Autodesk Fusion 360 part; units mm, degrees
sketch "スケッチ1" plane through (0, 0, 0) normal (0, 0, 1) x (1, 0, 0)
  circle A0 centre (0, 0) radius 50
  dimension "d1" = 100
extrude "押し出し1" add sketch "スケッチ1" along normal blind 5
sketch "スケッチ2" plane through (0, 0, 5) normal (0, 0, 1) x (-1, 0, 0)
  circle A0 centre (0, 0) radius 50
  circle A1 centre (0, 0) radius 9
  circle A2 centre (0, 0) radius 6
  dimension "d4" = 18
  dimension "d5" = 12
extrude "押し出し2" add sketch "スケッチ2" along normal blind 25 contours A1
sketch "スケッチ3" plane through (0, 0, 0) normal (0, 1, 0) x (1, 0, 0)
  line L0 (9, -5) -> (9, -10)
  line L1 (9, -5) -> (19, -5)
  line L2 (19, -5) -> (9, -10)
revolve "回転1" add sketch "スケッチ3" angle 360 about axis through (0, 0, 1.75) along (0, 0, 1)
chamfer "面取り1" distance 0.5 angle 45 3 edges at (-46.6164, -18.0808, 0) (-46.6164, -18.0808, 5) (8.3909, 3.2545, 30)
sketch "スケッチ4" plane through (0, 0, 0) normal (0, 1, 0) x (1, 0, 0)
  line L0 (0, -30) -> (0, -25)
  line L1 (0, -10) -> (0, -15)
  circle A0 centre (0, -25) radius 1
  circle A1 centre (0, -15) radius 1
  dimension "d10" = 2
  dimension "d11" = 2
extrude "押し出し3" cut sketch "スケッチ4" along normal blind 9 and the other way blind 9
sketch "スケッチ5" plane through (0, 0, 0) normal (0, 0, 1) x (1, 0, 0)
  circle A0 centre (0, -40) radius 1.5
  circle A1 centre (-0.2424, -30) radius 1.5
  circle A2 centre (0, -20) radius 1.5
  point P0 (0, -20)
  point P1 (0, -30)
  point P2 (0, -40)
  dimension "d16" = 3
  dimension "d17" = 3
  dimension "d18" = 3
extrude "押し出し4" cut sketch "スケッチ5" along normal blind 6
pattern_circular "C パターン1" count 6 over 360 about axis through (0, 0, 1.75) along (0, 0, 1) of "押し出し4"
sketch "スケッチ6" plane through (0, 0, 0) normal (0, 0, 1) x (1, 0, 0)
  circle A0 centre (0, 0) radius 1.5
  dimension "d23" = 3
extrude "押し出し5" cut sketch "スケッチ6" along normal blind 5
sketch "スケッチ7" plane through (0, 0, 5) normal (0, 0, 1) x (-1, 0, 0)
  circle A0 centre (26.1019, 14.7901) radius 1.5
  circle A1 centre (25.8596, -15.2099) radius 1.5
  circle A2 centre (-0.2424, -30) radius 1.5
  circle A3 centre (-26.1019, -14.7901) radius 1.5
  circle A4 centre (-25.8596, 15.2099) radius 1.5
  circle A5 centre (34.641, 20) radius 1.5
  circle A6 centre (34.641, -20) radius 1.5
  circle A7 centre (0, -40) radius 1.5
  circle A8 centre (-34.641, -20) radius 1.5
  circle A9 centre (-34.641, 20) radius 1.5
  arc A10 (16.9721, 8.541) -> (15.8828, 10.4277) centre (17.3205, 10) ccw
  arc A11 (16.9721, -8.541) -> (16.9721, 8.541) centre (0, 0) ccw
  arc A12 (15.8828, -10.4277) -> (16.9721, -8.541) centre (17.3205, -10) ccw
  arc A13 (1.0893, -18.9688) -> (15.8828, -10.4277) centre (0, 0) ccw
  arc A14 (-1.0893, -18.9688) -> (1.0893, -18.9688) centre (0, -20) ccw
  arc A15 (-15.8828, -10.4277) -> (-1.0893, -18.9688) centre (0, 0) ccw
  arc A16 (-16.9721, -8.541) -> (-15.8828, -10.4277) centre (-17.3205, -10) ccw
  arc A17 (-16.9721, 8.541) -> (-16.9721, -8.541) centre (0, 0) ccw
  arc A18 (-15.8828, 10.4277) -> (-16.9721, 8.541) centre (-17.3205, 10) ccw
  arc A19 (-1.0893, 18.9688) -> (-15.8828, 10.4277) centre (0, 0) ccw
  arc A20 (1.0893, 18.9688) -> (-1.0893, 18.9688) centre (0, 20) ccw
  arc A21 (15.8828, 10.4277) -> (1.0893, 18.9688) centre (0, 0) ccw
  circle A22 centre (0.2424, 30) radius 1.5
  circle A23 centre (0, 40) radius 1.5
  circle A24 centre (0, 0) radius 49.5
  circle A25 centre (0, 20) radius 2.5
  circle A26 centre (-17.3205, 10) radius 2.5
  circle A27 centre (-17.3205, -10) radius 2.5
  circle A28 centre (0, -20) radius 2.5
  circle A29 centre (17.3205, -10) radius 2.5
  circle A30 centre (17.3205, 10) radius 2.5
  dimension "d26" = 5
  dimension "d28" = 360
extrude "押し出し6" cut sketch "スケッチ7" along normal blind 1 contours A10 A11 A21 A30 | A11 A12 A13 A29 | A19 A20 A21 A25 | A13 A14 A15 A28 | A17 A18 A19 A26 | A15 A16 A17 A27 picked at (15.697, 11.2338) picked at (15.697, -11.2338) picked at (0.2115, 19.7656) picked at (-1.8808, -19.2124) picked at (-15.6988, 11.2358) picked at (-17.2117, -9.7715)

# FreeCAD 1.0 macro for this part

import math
import FreeCAD as App
import Part
import Sketcher
Q = App.Units.Quantity


def edges_at(feature, points):
    """Names of the edges that pass closest to the given points."""
    edges = feature.Shape.Edges
    near = lambda p: min(range(len(edges)), key=lambda i: edges[i].distToShape(Part.Vertex(*p))[0])
    return sorted({f"Edge{near(p) + 1}" for p in points})

doc = App.newDocument("Part")
body = doc.addObject("PartDesign::Body", "Body")

sketch1 = body.newObject("Sketcher::SketchObject", "Sketch")
sketch1.AttachmentSupport = (doc.getObject("XY_Plane"), [""])
sketch1.MapMode = "FlatFace"
sketch1.addGeometry(Part.Circle(App.Vector(0, 0, 0), App.Vector(0, 0, 1), 50), False)
sketch1.addConstraint([
    Sketcher.Constraint("Coincident", 0, 3, -1, 1),
    Sketcher.Constraint("Diameter", 0, Q("100 mm")),
])
pad1 = body.newObject("PartDesign::Pad", "Pad")
pad1.Profile = sketch1
pad1.Length = 5

sketch2 = body.newObject("Sketcher::SketchObject", "Sketch001")
sketch2.AttachmentSupport = (doc.getObject("XY_Plane"), [""])
sketch2.MapMode = "FlatFace"
sketch2.AttachmentOffset = App.Placement(App.Vector(0, 0, 5), App.Rotation())
sketch2.addGeometry([
    Part.Circle(App.Vector(0, 0, 0), App.Vector(0, 0, 1), 9),
    Part.Circle(App.Vector(0, 0, 0), App.Vector(0, 0, 1), 6),
], False)
sketch2.addConstraint([
    Sketcher.Constraint("Coincident", 0, 3, -1, 1),
    Sketcher.Constraint("Coincident", 1, 3, -1, 1),
    Sketcher.Constraint("Diameter", 0, Q("18 mm")),
    Sketcher.Constraint("Diameter", 1, Q("12 mm")),
])
pad2 = body.newObject("PartDesign::Pad", "Pad001")
pad2.Profile = sketch2
pad2.Length = 25

sketch3 = body.newObject("Sketcher::SketchObject", "Sketch002")
sketch3.AttachmentSupport = (doc.getObject("XZ_Plane"), [""])
sketch3.MapMode = "FlatFace"
sketch3.addGeometry([
    Part.LineSegment(App.Vector(19, 5, 0), App.Vector(9, 5, 0)),
    Part.LineSegment(App.Vector(9, 5, 0), App.Vector(9, 10, 0)),
    Part.LineSegment(App.Vector(9, 10, 0), App.Vector(19, 5, 0)),
], False)
sketch3.addConstraint([
    Sketcher.Constraint("Coincident", 0, 2, 1, 1),
    Sketcher.Constraint("Coincident", 1, 2, 2, 1),
    Sketcher.Constraint("Coincident", 2, 2, 0, 1),
    Sketcher.Constraint("Horizontal", 0),
    Sketcher.Constraint("Vertical", 1),
    Sketcher.Constraint("DistanceX", 0, 2, 0, 1, Q("10 mm")),
    Sketcher.Constraint("DistanceY", 1, 1, 1, 2, Q("5 mm")),
    Sketcher.Constraint("DistanceX", -1, 1, 0, 2, Q("9 mm")),
    Sketcher.Constraint("DistanceY", -1, 1, 0, 2, Q("5 mm")),
])
revolution = body.newObject("PartDesign::Revolution", "Revolution")
revolution.Profile = sketch3
revolution.ReferenceAxis = (sketch3, ["V_Axis"])
revolution.Angle = 360
doc.recompute()

chamfer = body.newObject("PartDesign::Chamfer", "Chamfer")
chamfer.Base = (revolution, edges_at(revolution, [(-46.616, -18.081, 0), (-46.616, -18.081, 5), (8.391, 3.255, 30)]))
chamfer.Size = 0.5

sketch4 = body.newObject("Sketcher::SketchObject", "Sketch003")
sketch4.AttachmentSupport = (doc.getObject("XZ_Plane"), [""])
sketch4.MapMode = "FlatFace"
sketch4.addGeometry([
    Part.Circle(App.Vector(0, 25, 0), App.Vector(0, 0, 1), 1),
    Part.Circle(App.Vector(0, 15, 0), App.Vector(0, 0, 1), 1),
], False)
sketch4.addConstraint([
    Sketcher.Constraint("Equal", 0, 1),
    Sketcher.Constraint("PointOnObject", 0, 3, -2),
    Sketcher.Constraint("PointOnObject", 1, 3, -2),
    Sketcher.Constraint("Diameter", 0, Q("2 mm")),
    Sketcher.Constraint("DistanceY", -1, 1, 0, 3, Q("25 mm")),
    Sketcher.Constraint("DistanceY", -1, 1, 1, 3, Q("15 mm")),
])
pocket1 = body.newObject("PartDesign::Pocket", "Pocket")
pocket1.Profile = sketch4
pocket1.Type = "ThroughAll"
pocket1.Midplane = True

sketch5 = body.newObject("Sketcher::SketchObject", "Sketch004")
sketch5.AttachmentSupport = (doc.getObject("XY_Plane"), [""])
sketch5.MapMode = "FlatFace"
sketch5.addGeometry([
    Part.Circle(App.Vector(0, -40, 0), App.Vector(0, 0, 1), 1.5),
    Part.Circle(App.Vector(-0.2, -30, 0), App.Vector(0, 0, 1), 1.5),
    Part.Circle(App.Vector(0, -20, 0), App.Vector(0, 0, 1), 1.5),
], False)
sketch5.addConstraint([
    Sketcher.Constraint("Equal", 0, 1),
    Sketcher.Constraint("Equal", 1, 2),
    Sketcher.Constraint("PointOnObject", 0, 3, -2),
    Sketcher.Constraint("PointOnObject", 2, 3, -2),
    Sketcher.Constraint("Diameter", 0, Q("3 mm")),
    Sketcher.Constraint("DistanceY", 0, 3, -1, 1, Q("40 mm")),
    Sketcher.Constraint("DistanceY", 1, 3, -1, 1, Q("30 mm")),
    Sketcher.Constraint("DistanceY", 2, 3, -1, 1, Q("20 mm")),
    Sketcher.Constraint("DistanceX", 1, 3, -1, 1, Q("0.2424 mm")),
])
pocket2 = body.newObject("PartDesign::Pocket", "Pocket001")
pocket2.Profile = sketch5
pocket2.Length = 6
pocket2.Reversed = True
doc.recompute()

polarpattern = body.newObject("PartDesign::PolarPattern", "PolarPattern")
polarpattern.Originals = [pocket2]
polarpattern.Axis = (doc.getObject("Z_Axis"), [""])
polarpattern.Angle = 360
polarpattern.Occurrences = 6
body.Tip = polarpattern

sketch6 = body.newObject("Sketcher::SketchObject", "Sketch005")
sketch6.AttachmentSupport = (doc.getObject("XY_Plane"), [""])
sketch6.MapMode = "FlatFace"
sketch6.addGeometry(Part.Circle(App.Vector(0, 0, 0), App.Vector(0, 0, 1), 1.5), False)
sketch6.addConstraint([
    Sketcher.Constraint("Coincident", 0, 3, -1, 1),
    Sketcher.Constraint("Diameter", 0, Q("3 mm")),
])
pocket3 = body.newObject("PartDesign::Pocket", "Pocket002")
pocket3.Profile = sketch6
pocket3.Length = 5
pocket3.Reversed = True

sketch7 = body.newObject("Sketcher::SketchObject", "Sketch006")
sketch7.AttachmentSupport = (doc.getObject("XY_Plane"), [""])
sketch7.MapMode = "FlatFace"
sketch7.AttachmentOffset = App.Placement(App.Vector(0, 0, 5), App.Rotation())
sketch7.addGeometry([
    Part.ArcOfCircle(Part.Circle(App.Vector(-17.3, -10, 0), App.Vector(0, 0, 1), 1.5), math.radians(77), math.radians(343)),
    Part.ArcOfCircle(Part.Circle(App.Vector(0, 0, 0), App.Vector(0, 0, 1), 19), math.radians(-156.74), math.radians(-153.29)),
    Part.ArcOfCircle(Part.Circle(App.Vector(-17.3, -10, 0), App.Vector(0, 0, 1), 2.5), math.radians(93), math.radians(327)),
    Part.ArcOfCircle(Part.Circle(App.Vector(0, 0, 0), App.Vector(0, 0, 1), 19), math.radians(-146.71), math.radians(-143.26)),
    Part.ArcOfCircle(Part.Circle(App.Vector(-17.3, 10, 0), App.Vector(0, 0, 1), 2.5), math.radians(33), math.radians(267)),
    Part.ArcOfCircle(Part.Circle(App.Vector(0, 0, 0), App.Vector(0, 0, 1), 19), math.radians(153.29), math.radians(156.74)),
    Part.ArcOfCircle(Part.Circle(App.Vector(-17.3, 10, 0), App.Vector(0, 0, 1), 1.5), math.radians(17), math.radians(283)),
    Part.ArcOfCircle(Part.Circle(App.Vector(0, 0, 0), App.Vector(0, 0, 1), 19), math.radians(143.26), math.radians(146.71)),
    Part.ArcOfCircle(Part.Circle(App.Vector(0, -20, 0), App.Vector(0, 0, 1), 2.5), math.radians(27), math.radians(153)),
    Part.ArcOfCircle(Part.Circle(App.Vector(0, 0, 0), App.Vector(0, 0, 1), 19), math.radians(-96.74), math.radians(-93.29)),
    Part.ArcOfCircle(Part.Circle(App.Vector(0, -20, 0), App.Vector(0, 0, 1), 1.5), math.radians(137), math.radians(403)),
    Part.ArcOfCircle(Part.Circle(App.Vector(0, 0, 0), App.Vector(0, 0, 1), 19), math.radians(-86.71), math.radians(-83.26)),
    Part.ArcOfCircle(Part.Circle(App.Vector(0, 20, 0), App.Vector(0, 0, 1), 2.5), math.radians(-27), math.radians(207)),
    Part.ArcOfCircle(Part.Circle(App.Vector(0, 0, 0), App.Vector(0, 0, 1), 19), math.radians(93.29), math.radians(96.74)),
    Part.ArcOfCircle(Part.Circle(App.Vector(0, 20, 0), App.Vector(0, 0, 1), 1.5), math.radians(-43), math.radians(223)),
    Part.ArcOfCircle(Part.Circle(App.Vector(0, 0, 0), App.Vector(0, 0, 1), 19), math.radians(83.26), math.radians(86.71)),
    Part.ArcOfCircle(Part.Circle(App.Vector(0, 0, 0), App.Vector(0, 0, 1), 19), math.radians(-36.74), math.radians(-33.29)),
    Part.ArcOfCircle(Part.Circle(App.Vector(17.3, -10, 0), App.Vector(0, 0, 1), 2.5), math.radians(-147), math.radians(87)),
    Part.ArcOfCircle(Part.Circle(App.Vector(0, 0, 0), App.Vector(0, 0, 1), 19), math.radians(-26.71), math.radians(-23.26)),
    Part.ArcOfCircle(Part.Circle(App.Vector(17.3, -10, 0), App.Vector(0, 0, 1), 1.5), math.radians(-163), math.radians(103)),
    Part.ArcOfCircle(Part.Circle(App.Vector(0, 0, 0), App.Vector(0, 0, 1), 19), math.radians(33.29), math.radians(36.74)),
    Part.ArcOfCircle(Part.Circle(App.Vector(17.3, 10, 0), App.Vector(0, 0, 1), 2.5), math.radians(147), math.radians(273)),
    Part.ArcOfCircle(Part.Circle(App.Vector(0, 0, 0), App.Vector(0, 0, 1), 19), math.radians(23.26), math.radians(26.71)),
    Part.ArcOfCircle(Part.Circle(App.Vector(17.3, 10, 0), App.Vector(0, 0, 1), 1.5), math.radians(-103), math.radians(163)),
], False)
sketch7.addConstraint([
    Sketcher.Constraint("Coincident", 0, 1, 1, 2),
    Sketcher.Constraint("Coincident", 1, 1, 2, 1),
    Sketcher.Constraint("Coincident", 2, 2, 3, 2),
    Sketcher.Constraint("Coincident", 3, 1, 0, 2),
    Sketcher.Constraint("Coincident", 4, 2, 5, 2),
    Sketcher.Constraint("Coincident", 5, 1, 6, 2),
    Sketcher.Constraint("Coincident", 6, 1, 7, 2),
    Sketcher.Constraint("Coincident", 7, 1, 4, 1),
    Sketcher.Constraint("Coincident", 8, 2, 9, 1),
    Sketcher.Constraint("Coincident", 9, 2, 10, 1),
    Sketcher.Constraint("Coincident", 10, 2, 11, 1),
    Sketcher.Constraint("Coincident", 11, 2, 8, 1),
    Sketcher.Constraint("Coincident", 12, 2, 13, 2),
    Sketcher.Constraint("Coincident", 13, 1, 14, 2),
    Sketcher.Constraint("Coincident", 14, 1, 15, 2),
    Sketcher.Constraint("Coincident", 15, 1, 12, 1),
    Sketcher.Constraint("Coincident", 16, 1, 17, 1),
    Sketcher.Constraint("Coincident", 17, 2, 18, 2),
    Sketcher.Constraint("Coincident", 18, 1, 19, 2),
    Sketcher.Constraint("Coincident", 19, 1, 16, 2),
    Sketcher.Constraint("Coincident", 20, 2, 21, 1),
    Sketcher.Constraint("Coincident", 21, 2, 22, 1),
    Sketcher.Constraint("Coincident", 22, 2, 23, 1),
    Sketcher.Constraint("Coincident", 23, 2, 20, 1),
    Sketcher.Constraint("Coincident", 1, 3, -1, 1),
    Sketcher.Constraint("Coincident", 3, 3, -1, 1),
    Sketcher.Constraint("Coincident", 5, 3, -1, 1),
    Sketcher.Constraint("Coincident", 7, 3, -1, 1),
    Sketcher.Constraint("Coincident", 9, 3, -1, 1),
    Sketcher.Constraint("Coincident", 11, 3, -1, 1),
    Sketcher.Constraint("Coincident", 13, 3, -1, 1),
    Sketcher.Constraint("Coincident", 15, 3, -1, 1),
    Sketcher.Constraint("Coincident", 16, 3, -1, 1),
    Sketcher.Constraint("Coincident", 18, 3, -1, 1),
    Sketcher.Constraint("Coincident", 20, 3, -1, 1),
    Sketcher.Constraint("Coincident", 22, 3, -1, 1),
    Sketcher.Constraint("Coincident", 2, 3, 0, 3),
    Sketcher.Constraint("Coincident", 6, 3, 4, 3),
    Sketcher.Constraint("Coincident", 10, 3, 8, 3),
    Sketcher.Constraint("Coincident", 14, 3, 12, 3),
    Sketcher.Constraint("Coincident", 19, 3, 17, 3),
    Sketcher.Constraint("Coincident", 23, 3, 21, 3),
    Sketcher.Constraint("Equal", 1, 3),
    Sketcher.Constraint("Equal", 2, 4),
    Sketcher.Constraint("Equal", 3, 5),
    Sketcher.Constraint("Equal", 0, 6),
    Sketcher.Constraint("Equal", 5, 7),
    Sketcher.Constraint("Equal", 4, 8),
    Sketcher.Constraint("Equal", 7, 9),
    Sketcher.Constraint("Equal", 6, 10),
    Sketcher.Constraint("Equal", 9, 11),
    Sketcher.Constraint("Equal", 8, 12),
    Sketcher.Constraint("Equal", 11, 13),
    Sketcher.Constraint("Equal", 10, 14),
    Sketcher.Constraint("Equal", 13, 15),
    Sketcher.Constraint("Equal", 15, 16),
    Sketcher.Constraint("Equal", 12, 17),
    Sketcher.Constraint("Equal", 16, 18),
    Sketcher.Constraint("Equal", 14, 19),
    Sketcher.Constraint("Equal", 18, 20),
    Sketcher.Constraint("Equal", 17, 21),
    Sketcher.Constraint("Equal", 20, 22),
    Sketcher.Constraint("Equal", 19, 23),
    Sketcher.Constraint("Symmetric", 8, 3, 12, 3, -1, 1),
    Sketcher.Constraint("Symmetric", 4, 3, 17, 3, -1, 1),
    Sketcher.Constraint("Symmetric", 0, 3, 21, 3, -1, 1),
    Sketcher.Constraint("Symmetric", 0, 3, 17, 3, -2),
    Sketcher.Constraint("PointOnObject", 8, 3, -2),
    Sketcher.Constraint("Radius", 2, Q("2.5 mm")),
    Sketcher.Constraint("Radius", 1, Q("19 mm")),
    Sketcher.Constraint("Radius", 0, Q("1.5 mm")),
    Sketcher.Constraint("DistanceY", 0, 3, -1, 1, Q("10 mm")),
    Sketcher.Constraint("DistanceY", 8, 3, -1, 1, Q("20 mm")),
    Sketcher.Constraint("DistanceX", 0, 1, -1, 1, Q("16.972 mm")),
])
pocket4 = body.newObject("PartDesign::Pocket", "Pocket003")
pocket4.Profile = sketch7
pocket4.Length = 1
pocket4.Reversed = True

doc.recompute()
